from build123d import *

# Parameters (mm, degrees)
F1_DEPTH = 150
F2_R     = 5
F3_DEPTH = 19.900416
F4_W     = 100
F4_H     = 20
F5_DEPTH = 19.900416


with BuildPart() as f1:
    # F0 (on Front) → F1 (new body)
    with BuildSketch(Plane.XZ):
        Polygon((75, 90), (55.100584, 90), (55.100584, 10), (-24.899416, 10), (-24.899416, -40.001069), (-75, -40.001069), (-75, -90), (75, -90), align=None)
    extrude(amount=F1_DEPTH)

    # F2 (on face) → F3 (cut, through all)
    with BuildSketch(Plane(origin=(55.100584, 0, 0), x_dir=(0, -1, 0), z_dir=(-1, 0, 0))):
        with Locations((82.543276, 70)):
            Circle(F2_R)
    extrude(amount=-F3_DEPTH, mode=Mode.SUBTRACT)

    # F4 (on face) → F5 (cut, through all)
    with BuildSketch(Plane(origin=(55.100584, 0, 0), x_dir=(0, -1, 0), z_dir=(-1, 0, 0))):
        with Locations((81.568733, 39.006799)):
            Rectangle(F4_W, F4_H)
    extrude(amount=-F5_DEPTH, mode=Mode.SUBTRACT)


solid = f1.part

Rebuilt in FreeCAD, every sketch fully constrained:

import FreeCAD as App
import Part
import Sketcher
Q = App.Units.Quantity


def add_polygon(sketch, points):
    """Adds a closed chain of lines whose ends are joined by coincident constraints."""
    first, n = sketch.GeometryCount, len(points)
    for a, b in zip(points, points[1:] + points[:1]):
        sketch.addGeometry(Part.LineSegment(App.Vector(*a, 0), App.Vector(*b, 0)), False)
    for i in range(n):
        sketch.addConstraint(Sketcher.Constraint("Coincident", first + i, 2, first + (i + 1) % n, 1))

doc = App.newDocument("Part")
body = doc.addObject("PartDesign::Body", "Body")

# Sketch on XZ plane
sketch1 = body.newObject("Sketcher::SketchObject", "Sketch")
sketch1.AttachmentSupport = (doc.getObject("XZ_Plane"), [""])
sketch1.MapMode = "FlatFace"
add_polygon(sketch1, [(75, 90), (55, 90), (55, 10), (-25, 10), (-25, -40), (-75, -40), (-75, -90), (75, -90)])  # lines 0-7
sketch1.addConstraint([
    Sketcher.Constraint("Horizontal", 0),
    Sketcher.Constraint("Vertical", 1),
    Sketcher.Constraint("Horizontal", 2),
    Sketcher.Constraint("Vertical", 3),
    Sketcher.Constraint("Horizontal", 4),
    Sketcher.Constraint("Vertical", 5),
    Sketcher.Constraint("Horizontal", 6),
    Sketcher.Constraint("Vertical", 7),
    Sketcher.Constraint("Symmetric", 5, 2, 7, 2, -1, 1),
    Sketcher.Constraint("Equal", 2, 1),
    Sketcher.Constraint("DistanceX", 2, 2, 2, 1, Q("80 mm")),
    Sketcher.Constraint("DistanceX", 6, 1, 6, 2, Q("150 mm")),
    Sketcher.Constraint("DistanceY", 7, 1, 7, 2, Q("180 mm")),
    Sketcher.Constraint("DistanceY", 3, 2, 3, 1, Q("50.001069 mm")),
    Sketcher.Constraint("DistanceX", 0, 2, 0, 1, Q("19.899416 mm")),
])
pad1 = body.newObject("PartDesign::Pad", "Pad")
pad1.Profile = sketch1
pad1.Length = 150

# Sketch on YZ plane
sketch2 = body.newObject("Sketcher::SketchObject", "Sketch001")
sketch2.AttachmentSupport = (doc.getObject("YZ_Plane"), [""])
sketch2.MapMode = "FlatFace"
sketch2.AttachmentOffset = App.Placement(App.Vector(0, 0, 55.100584), App.Rotation())
sketch2.addGeometry(Part.Circle(App.Vector(-83, 70, 0), App.Vector(0, 0, 1), 5), False)
sketch2.addConstraint([
    Sketcher.Constraint("Diameter", 0, Q("10 mm")),
    Sketcher.Constraint("DistanceY", -1, 1, 0, 3, Q("70 mm")),
    Sketcher.Constraint("DistanceX", 0, 3, -1, 1, Q("82.543276 mm")),
])
pocket1 = body.newObject("PartDesign::Pocket", "Pocket")
pocket1.Profile = sketch2
pocket1.Type = "ThroughAll"
pocket1.Reversed = True

# Sketch on YZ plane
sketch3 = body.newObject("Sketcher::SketchObject", "Sketch002")
sketch3.AttachmentSupport = (doc.getObject("YZ_Plane"), [""])
sketch3.MapMode = "FlatFace"
sketch3.AttachmentOffset = App.Placement(App.Vector(0, 0, 55.100584), App.Rotation())
add_polygon(sketch3, [(-32, 49), (-32, 29), (-132, 29), (-132, 49)])  # lines 0-3
sketch3.addConstraint([
    Sketcher.Constraint("Vertical", 0),
    Sketcher.Constraint("Horizontal", 1),
    Sketcher.Constraint("Vertical", 2),
    Sketcher.Constraint("Horizontal", 3),
    Sketcher.Constraint("DistanceX", 1, 2, 1, 1, Q("100 mm")),
    Sketcher.Constraint("DistanceY", 0, 2, 0, 1, Q("20 mm")),
    Sketcher.Constraint("DistanceY", -1, 1, 0, 2, Q("29.006799 mm")),
    Sketcher.Constraint("DistanceX", 0, 2, -1, 1, Q("31.568733 mm")),
])
pocket2 = body.newObject("PartDesign::Pocket", "Pocket001")
pocket2.Profile = sketch3
pocket2.Type = "ThroughAll"
pocket2.Reversed = True

doc.recompute()
